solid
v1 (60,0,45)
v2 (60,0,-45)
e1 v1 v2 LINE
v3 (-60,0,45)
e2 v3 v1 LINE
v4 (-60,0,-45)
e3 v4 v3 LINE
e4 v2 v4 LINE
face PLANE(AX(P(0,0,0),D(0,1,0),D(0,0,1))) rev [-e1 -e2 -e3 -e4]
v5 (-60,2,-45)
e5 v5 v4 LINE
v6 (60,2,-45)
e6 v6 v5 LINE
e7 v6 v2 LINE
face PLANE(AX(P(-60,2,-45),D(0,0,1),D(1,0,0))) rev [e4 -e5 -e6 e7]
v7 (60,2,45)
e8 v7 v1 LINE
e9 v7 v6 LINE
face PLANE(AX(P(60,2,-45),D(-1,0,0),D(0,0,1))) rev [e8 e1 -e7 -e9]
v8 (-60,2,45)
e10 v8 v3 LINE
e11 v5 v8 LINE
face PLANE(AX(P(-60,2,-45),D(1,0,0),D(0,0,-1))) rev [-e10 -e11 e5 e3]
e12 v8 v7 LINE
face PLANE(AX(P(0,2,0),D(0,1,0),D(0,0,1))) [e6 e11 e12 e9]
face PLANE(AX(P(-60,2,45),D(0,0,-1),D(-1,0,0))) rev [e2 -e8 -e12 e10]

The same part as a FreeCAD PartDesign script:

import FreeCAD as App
import Part
import Sketcher
Q = App.Units.Quantity


def add_polygon(sketch, points):
    """Adds a closed chain of lines whose ends are joined by coincident constraints."""
    first, n = sketch.GeometryCount, len(points)
    for a, b in zip(points, points[1:] + points[:1]):
        sketch.addGeometry(Part.LineSegment(App.Vector(*a, 0), App.Vector(*b, 0)), False)
    for i in range(n):
        sketch.addConstraint(Sketcher.Constraint("Coincident", first + i, 2, first + (i + 1) % n, 1))

doc = App.newDocument("Part")
body = doc.addObject("PartDesign::Body", "Body")

sketch1 = body.newObject("Sketcher::SketchObject", "Sketch")
sketch1.AttachmentSupport = (doc.getObject("XZ_Plane"), [""])
sketch1.MapMode = "FlatFace"
add_polygon(sketch1, [(-60, -45), (-60, 45), (60, 45), (60, -45)])
sketch1.addConstraint([
    Sketcher.Constraint("Vertical", 0),
    Sketcher.Constraint("Horizontal", 1),
    Sketcher.Constraint("Vertical", 2),
    Sketcher.Constraint("Horizontal", 3),
    Sketcher.Constraint("Symmetric", 0, 2, 2, 2, -1, 1),
    Sketcher.Constraint("DistanceX", 1, 1, 1, 2, Q("120 mm")),
    Sketcher.Constraint("DistanceY", 0, 1, 0, 2, Q("90 mm")),
])
pad1 = body.newObject("PartDesign::Pad", "Pad")
pad1.Profile = sketch1
pad1.Length = 2
pad1.Reversed = True

doc.recompute()
